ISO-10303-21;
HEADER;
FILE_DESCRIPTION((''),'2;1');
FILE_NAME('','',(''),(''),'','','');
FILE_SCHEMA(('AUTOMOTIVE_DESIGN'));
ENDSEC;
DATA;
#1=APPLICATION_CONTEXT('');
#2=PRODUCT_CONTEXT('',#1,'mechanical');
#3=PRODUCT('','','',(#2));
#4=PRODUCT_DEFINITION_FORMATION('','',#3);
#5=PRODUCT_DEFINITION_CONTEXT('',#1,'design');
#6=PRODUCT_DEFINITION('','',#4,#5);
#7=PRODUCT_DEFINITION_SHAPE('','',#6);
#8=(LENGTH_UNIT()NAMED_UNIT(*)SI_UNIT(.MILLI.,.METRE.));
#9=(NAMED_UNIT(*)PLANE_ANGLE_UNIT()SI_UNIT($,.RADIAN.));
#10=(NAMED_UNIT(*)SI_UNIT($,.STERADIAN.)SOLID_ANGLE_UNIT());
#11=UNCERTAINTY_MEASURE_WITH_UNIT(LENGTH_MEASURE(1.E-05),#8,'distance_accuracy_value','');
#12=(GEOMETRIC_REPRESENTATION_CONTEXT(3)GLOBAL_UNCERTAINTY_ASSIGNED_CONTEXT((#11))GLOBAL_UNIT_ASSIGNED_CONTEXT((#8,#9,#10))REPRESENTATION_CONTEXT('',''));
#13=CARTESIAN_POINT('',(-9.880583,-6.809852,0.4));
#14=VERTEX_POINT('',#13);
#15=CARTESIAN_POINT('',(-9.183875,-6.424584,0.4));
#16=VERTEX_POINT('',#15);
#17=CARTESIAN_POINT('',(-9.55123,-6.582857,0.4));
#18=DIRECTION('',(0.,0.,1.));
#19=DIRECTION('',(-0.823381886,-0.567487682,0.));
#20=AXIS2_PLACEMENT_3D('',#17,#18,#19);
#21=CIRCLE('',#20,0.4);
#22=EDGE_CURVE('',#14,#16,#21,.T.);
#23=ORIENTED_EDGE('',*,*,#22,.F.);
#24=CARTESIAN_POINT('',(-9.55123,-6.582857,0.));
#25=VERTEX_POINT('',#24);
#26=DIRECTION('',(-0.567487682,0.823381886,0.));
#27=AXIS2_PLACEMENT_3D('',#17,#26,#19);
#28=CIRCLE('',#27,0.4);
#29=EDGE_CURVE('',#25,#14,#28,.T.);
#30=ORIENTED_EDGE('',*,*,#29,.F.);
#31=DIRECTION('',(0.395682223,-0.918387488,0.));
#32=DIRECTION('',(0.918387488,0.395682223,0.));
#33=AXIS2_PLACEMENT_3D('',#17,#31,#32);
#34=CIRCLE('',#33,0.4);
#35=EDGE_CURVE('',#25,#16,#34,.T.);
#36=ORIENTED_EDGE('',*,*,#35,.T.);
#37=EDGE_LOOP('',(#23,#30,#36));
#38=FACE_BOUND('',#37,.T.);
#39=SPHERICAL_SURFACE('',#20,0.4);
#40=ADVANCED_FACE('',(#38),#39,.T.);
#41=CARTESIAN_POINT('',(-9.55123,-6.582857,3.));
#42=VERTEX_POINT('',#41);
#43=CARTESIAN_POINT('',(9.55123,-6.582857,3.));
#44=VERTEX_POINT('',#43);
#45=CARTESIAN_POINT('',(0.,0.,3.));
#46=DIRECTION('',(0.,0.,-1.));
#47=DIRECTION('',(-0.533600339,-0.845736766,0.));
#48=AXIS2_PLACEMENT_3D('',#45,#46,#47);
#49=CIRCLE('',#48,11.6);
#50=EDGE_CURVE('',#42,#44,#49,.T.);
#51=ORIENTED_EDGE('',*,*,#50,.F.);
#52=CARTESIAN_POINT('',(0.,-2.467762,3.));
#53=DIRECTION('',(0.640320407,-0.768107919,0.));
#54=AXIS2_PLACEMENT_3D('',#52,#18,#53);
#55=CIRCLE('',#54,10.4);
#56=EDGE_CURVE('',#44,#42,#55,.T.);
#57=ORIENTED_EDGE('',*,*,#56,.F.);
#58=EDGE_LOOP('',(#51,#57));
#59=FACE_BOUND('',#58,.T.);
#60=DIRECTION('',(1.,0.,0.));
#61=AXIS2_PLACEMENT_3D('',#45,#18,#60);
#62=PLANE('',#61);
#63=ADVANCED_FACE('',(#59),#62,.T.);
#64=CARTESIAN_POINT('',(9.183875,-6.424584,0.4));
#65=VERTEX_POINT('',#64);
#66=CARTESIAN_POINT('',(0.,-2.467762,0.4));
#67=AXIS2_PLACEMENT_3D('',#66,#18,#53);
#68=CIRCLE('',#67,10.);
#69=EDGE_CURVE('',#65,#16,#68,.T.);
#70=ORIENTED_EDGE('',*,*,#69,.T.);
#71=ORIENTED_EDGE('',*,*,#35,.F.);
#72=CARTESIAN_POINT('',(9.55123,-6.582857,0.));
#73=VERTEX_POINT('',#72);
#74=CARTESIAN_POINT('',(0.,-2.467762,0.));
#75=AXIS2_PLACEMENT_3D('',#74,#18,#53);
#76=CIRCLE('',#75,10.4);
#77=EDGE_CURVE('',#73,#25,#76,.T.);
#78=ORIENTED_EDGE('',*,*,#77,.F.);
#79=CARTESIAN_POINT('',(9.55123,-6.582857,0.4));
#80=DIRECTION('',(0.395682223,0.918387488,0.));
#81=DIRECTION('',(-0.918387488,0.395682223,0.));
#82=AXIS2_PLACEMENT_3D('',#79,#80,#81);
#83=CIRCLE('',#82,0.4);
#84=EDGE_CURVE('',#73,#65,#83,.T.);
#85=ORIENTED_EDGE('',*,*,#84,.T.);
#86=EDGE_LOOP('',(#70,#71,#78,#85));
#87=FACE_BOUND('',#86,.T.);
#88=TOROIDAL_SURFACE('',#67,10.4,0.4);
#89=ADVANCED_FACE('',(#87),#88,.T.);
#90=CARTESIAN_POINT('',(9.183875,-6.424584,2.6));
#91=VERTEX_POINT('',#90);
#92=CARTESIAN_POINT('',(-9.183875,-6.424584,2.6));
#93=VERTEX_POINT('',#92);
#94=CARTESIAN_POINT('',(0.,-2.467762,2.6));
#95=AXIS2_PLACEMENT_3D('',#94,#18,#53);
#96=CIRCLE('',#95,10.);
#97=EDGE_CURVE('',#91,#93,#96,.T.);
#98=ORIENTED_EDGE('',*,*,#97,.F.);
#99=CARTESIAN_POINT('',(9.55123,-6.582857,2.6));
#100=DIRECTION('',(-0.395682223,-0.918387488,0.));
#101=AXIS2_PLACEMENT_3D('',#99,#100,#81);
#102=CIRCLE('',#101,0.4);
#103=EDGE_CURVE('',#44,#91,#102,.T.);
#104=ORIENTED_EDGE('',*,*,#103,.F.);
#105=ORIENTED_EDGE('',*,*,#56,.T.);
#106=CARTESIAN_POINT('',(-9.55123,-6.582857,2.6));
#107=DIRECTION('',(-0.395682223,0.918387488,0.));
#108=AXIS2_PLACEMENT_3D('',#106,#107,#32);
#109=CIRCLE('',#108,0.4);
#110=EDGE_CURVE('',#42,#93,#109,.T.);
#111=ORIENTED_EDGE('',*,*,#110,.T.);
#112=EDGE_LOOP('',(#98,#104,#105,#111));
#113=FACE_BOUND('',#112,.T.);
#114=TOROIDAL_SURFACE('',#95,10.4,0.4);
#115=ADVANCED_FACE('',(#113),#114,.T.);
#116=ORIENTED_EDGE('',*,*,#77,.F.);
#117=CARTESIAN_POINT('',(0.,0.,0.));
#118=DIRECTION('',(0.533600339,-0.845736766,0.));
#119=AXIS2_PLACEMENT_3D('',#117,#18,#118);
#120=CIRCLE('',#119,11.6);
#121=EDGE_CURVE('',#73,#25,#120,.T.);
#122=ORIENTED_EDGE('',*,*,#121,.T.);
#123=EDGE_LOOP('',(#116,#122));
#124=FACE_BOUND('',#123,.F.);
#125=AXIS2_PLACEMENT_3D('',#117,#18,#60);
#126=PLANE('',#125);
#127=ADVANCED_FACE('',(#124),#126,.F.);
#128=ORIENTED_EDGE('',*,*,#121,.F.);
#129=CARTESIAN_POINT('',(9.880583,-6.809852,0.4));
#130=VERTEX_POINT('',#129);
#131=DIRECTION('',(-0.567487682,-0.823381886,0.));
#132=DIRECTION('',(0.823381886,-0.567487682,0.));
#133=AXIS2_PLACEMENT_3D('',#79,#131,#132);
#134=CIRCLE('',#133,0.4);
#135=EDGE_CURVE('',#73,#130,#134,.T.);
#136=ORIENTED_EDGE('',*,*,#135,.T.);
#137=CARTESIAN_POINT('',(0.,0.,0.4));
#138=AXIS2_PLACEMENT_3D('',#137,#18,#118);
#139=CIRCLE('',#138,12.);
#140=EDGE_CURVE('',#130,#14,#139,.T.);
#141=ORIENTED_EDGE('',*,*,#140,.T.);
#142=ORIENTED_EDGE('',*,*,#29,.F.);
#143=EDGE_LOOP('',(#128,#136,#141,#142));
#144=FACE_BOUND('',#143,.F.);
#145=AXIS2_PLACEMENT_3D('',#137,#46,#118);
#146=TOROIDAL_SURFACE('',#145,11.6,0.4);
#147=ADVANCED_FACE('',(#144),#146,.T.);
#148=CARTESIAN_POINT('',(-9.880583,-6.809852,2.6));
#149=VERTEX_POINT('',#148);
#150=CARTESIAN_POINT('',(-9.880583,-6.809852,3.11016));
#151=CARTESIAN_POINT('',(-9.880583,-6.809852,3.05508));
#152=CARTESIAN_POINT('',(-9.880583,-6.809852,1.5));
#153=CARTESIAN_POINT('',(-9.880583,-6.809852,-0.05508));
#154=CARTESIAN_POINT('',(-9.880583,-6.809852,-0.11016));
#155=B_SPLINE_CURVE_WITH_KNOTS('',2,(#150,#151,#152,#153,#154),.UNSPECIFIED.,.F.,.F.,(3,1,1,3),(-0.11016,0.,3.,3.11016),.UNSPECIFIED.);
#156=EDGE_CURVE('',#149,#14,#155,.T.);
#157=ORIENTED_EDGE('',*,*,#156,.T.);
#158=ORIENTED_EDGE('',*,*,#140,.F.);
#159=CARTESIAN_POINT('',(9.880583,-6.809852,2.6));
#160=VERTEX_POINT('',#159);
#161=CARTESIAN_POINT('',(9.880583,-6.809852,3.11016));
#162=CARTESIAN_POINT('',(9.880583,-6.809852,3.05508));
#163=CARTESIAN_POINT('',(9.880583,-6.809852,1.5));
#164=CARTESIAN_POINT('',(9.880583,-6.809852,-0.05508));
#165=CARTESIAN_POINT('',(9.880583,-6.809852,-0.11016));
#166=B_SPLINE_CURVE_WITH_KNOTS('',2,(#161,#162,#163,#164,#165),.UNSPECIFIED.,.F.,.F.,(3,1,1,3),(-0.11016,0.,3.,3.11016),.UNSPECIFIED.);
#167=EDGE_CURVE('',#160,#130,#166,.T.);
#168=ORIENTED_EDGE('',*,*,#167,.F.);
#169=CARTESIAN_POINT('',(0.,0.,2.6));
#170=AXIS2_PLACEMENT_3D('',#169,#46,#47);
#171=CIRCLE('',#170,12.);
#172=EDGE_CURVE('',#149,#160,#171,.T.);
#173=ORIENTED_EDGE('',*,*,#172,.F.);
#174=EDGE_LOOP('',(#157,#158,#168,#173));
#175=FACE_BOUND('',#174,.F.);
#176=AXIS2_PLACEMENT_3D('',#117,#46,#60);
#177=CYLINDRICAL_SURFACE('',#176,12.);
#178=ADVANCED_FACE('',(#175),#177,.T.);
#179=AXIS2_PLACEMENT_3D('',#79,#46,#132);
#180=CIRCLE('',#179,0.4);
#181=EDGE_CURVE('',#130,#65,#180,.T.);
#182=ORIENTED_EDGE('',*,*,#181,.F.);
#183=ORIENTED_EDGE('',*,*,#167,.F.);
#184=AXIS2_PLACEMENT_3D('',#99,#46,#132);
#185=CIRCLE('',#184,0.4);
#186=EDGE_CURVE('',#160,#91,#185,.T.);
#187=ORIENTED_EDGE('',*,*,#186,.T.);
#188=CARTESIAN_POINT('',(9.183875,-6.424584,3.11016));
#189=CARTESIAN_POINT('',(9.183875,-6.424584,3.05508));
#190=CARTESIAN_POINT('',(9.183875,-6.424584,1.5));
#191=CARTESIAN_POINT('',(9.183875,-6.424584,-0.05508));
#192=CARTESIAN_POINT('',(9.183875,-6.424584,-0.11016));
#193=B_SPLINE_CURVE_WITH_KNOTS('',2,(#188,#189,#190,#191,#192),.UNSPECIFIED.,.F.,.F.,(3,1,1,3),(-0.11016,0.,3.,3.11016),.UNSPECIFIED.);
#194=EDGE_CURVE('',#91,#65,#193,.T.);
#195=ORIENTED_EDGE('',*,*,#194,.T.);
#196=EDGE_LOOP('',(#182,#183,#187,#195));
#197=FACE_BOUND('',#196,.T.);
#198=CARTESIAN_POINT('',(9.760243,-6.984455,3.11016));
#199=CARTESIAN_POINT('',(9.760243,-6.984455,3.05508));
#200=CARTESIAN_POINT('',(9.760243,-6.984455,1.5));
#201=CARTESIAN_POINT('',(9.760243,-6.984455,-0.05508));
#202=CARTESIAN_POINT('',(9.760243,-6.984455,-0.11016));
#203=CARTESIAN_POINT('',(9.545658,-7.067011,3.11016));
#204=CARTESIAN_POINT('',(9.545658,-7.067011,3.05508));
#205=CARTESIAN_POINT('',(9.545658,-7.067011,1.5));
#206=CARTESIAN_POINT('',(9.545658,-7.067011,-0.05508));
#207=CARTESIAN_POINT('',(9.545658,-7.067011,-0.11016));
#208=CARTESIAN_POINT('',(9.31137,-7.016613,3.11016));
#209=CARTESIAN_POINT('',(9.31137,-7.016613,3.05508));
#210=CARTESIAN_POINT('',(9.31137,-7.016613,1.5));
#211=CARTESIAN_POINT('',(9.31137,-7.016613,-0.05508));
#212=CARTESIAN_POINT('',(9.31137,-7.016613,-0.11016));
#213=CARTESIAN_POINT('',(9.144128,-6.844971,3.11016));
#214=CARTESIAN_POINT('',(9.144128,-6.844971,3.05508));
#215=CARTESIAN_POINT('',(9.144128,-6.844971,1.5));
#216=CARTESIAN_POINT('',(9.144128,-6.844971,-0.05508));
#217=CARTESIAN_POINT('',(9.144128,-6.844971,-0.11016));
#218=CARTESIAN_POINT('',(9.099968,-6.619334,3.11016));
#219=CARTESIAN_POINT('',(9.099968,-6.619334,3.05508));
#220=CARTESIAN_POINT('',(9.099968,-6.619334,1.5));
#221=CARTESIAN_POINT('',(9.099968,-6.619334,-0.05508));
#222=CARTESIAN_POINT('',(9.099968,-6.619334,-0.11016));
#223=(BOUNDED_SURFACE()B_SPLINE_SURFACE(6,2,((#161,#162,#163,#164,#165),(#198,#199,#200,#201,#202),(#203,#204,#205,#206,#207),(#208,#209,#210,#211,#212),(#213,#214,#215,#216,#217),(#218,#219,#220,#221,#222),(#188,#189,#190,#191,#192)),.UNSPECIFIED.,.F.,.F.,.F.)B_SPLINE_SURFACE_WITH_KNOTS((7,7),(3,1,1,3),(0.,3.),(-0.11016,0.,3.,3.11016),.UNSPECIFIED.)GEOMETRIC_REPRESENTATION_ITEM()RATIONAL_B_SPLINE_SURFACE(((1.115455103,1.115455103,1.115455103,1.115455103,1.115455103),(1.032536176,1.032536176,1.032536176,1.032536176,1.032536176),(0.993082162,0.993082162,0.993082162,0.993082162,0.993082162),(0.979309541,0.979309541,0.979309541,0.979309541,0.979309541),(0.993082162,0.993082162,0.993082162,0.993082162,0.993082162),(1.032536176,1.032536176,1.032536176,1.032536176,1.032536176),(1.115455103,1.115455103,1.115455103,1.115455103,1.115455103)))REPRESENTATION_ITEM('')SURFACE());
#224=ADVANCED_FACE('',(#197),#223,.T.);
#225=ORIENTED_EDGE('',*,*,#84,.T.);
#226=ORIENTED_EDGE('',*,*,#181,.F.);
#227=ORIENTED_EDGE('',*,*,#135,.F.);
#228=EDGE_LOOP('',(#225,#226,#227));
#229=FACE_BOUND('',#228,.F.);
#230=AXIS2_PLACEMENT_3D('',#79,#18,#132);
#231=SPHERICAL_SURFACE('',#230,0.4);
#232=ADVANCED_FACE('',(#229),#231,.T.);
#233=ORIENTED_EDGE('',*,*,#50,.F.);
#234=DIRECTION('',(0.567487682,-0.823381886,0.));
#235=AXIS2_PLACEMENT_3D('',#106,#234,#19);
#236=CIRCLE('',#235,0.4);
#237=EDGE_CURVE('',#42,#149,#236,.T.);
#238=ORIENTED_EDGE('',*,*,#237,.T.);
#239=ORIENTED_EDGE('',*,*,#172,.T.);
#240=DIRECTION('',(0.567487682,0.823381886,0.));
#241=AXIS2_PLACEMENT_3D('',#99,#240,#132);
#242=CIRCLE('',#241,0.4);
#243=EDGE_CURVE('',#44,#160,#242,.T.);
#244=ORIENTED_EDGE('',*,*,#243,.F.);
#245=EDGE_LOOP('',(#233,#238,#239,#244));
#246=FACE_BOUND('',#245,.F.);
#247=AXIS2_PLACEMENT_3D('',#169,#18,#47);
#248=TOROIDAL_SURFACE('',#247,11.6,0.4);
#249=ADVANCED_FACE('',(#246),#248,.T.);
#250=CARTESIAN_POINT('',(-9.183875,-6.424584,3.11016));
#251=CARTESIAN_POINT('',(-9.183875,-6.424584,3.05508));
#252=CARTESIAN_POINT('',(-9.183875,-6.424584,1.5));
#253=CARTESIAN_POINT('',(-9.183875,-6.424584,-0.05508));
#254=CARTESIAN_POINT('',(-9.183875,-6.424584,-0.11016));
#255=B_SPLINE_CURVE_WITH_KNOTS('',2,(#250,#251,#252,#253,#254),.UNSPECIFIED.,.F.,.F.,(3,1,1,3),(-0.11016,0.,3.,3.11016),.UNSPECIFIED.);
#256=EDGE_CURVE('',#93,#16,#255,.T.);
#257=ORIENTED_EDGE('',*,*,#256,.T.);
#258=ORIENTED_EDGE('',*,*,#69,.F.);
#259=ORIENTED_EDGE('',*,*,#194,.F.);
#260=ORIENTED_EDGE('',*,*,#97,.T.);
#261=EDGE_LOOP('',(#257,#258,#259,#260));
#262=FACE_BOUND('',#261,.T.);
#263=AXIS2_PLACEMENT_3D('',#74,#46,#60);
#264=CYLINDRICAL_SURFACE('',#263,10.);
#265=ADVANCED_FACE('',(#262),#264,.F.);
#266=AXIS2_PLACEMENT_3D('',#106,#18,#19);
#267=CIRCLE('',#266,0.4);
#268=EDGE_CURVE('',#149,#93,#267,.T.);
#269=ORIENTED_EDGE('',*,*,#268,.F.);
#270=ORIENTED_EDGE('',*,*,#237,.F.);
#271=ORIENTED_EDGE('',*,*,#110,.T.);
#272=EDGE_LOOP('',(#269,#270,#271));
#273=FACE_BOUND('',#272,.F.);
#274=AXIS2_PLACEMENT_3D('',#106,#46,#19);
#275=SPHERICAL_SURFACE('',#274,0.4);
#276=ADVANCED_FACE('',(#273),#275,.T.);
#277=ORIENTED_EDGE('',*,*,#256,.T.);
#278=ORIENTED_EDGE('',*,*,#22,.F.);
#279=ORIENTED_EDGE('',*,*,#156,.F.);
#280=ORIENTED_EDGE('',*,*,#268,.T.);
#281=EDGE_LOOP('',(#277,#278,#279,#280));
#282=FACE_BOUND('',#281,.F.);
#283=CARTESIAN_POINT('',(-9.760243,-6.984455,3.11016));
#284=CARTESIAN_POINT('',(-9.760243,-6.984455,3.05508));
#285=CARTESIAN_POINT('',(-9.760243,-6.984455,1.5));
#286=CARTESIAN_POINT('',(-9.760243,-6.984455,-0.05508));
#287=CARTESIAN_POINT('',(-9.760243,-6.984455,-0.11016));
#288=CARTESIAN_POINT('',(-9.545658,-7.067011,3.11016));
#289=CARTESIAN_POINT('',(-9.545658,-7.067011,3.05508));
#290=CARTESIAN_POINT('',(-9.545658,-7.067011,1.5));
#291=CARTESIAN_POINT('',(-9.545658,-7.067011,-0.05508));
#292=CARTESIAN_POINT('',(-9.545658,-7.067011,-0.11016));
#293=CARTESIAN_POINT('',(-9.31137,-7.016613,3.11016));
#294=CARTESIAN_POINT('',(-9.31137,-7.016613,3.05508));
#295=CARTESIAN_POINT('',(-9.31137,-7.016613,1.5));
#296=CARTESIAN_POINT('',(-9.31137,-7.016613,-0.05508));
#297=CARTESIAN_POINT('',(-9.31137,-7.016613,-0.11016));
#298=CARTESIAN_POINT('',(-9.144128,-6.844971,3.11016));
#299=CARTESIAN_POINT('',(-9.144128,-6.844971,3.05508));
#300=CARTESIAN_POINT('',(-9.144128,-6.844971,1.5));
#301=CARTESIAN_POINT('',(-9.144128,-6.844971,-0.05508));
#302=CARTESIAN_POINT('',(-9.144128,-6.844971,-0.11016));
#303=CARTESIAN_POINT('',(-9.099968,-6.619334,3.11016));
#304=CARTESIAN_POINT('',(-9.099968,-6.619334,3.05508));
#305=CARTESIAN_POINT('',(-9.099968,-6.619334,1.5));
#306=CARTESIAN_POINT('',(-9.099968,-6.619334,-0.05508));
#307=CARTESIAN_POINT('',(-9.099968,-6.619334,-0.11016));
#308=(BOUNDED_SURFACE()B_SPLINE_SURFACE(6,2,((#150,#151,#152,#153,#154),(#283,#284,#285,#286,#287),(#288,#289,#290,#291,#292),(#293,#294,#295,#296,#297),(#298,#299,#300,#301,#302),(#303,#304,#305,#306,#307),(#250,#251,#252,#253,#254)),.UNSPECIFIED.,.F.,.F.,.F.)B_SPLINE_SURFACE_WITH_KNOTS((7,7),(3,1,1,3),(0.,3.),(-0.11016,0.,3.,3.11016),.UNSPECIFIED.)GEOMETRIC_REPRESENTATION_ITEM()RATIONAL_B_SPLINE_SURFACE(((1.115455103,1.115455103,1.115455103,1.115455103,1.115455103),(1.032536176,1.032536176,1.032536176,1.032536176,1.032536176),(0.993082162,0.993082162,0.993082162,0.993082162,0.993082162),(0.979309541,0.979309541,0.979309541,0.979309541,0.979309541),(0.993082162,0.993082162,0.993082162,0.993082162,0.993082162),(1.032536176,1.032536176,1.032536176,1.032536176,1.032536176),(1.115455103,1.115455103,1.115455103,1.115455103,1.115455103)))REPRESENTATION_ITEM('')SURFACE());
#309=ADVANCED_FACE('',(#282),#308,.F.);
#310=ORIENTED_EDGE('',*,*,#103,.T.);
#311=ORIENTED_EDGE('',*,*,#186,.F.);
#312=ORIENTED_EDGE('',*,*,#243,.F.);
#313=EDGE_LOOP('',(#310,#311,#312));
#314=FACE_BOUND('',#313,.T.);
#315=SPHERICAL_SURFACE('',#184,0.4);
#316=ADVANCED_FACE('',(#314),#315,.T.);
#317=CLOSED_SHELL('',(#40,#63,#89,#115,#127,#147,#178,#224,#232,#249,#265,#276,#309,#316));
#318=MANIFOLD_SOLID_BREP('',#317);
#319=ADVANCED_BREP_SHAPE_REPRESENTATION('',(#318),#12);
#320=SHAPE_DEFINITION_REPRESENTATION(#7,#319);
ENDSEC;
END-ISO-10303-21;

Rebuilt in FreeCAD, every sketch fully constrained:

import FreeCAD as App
import Part
import Sketcher

V = App.Vector

doc = App.newDocument("Part")
body = doc.addObject("PartDesign::Body", "Body")

sketch1 = body.newObject("Sketcher::SketchObject", "Sketch")
sketch1.AttachmentSupport = (doc.getObject("XY_Plane"), [""])
sketch1.MapMode = "FlatFace"
sketch1.addGeometry(Part.Circle(V(0, 0, 0), V(0, 0, 1), 12), False)
sketch1.addConstraint([
    Sketcher.Constraint("Coincident", 0, 3, -1, 1),
    Sketcher.Constraint("Diameter", 0, 24.0),
])
pad1 = body.newObject("PartDesign::Pad", "Pad")
pad1.Profile = sketch1
pad1.Length = 3

sketch2 = body.newObject("Sketcher::SketchObject", "Sketch001")
sketch2.AttachmentSupport = (doc.getObject("XY_Plane"), [""])
sketch2.MapMode = "FlatFace"
sketch2.addGeometry(Part.Circle(V(0, -2, 0), V(0, 0, 1), 10), False)
sketch2.addConstraint([
    Sketcher.Constraint("PointOnObject", 0, 3, -2),
    Sketcher.Constraint("Diameter", 0, 20.0),
    Sketcher.Constraint("DistanceY", 0, 3, -1, 1, 2.467762),
])
pocket1 = body.newObject("PartDesign::Pocket", "Pocket")
pocket1.Profile = sketch2
pocket1.Type = "ThroughAll"
pocket1.Reversed = True
doc.recompute()

fillet = body.newObject("PartDesign::Fillet", "Fillet")
fillet.Base = (pocket1, ["Edge1"])
fillet.UseAllEdges = True
fillet.Radius = 0.4

doc.recompute()
